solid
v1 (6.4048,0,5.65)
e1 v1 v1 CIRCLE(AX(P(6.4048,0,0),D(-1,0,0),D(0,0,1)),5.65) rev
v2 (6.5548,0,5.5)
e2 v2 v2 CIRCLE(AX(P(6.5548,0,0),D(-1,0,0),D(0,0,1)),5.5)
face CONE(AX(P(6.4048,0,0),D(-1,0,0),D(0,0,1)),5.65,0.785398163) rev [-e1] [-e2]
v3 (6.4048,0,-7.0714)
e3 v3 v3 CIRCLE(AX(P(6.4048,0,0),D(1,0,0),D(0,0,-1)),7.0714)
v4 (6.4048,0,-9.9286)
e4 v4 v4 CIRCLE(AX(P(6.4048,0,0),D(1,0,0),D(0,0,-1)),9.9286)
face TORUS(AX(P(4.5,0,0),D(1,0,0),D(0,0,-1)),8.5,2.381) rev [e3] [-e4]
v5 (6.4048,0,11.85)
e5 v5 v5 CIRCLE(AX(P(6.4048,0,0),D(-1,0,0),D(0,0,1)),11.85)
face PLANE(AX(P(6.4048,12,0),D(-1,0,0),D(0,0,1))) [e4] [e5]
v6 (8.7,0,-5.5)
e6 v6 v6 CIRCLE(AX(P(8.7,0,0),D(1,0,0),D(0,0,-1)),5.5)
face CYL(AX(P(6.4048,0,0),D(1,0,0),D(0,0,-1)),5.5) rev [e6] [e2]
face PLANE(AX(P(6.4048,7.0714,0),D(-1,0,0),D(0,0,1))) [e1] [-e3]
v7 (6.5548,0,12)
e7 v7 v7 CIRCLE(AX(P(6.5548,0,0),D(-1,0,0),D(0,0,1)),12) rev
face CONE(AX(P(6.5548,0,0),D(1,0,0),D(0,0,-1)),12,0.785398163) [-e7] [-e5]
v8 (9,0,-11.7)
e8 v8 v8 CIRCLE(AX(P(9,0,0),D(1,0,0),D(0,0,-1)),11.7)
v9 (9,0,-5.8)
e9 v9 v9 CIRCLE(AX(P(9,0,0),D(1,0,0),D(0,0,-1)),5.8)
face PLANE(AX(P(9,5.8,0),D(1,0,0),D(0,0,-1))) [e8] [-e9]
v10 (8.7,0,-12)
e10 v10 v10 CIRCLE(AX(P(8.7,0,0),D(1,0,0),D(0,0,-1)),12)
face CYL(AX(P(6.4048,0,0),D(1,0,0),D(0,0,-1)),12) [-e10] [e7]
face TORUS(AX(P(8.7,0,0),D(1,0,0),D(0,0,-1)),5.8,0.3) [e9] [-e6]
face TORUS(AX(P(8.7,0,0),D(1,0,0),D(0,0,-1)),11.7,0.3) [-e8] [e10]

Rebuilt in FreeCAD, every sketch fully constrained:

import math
import FreeCAD as App
import Part
import Sketcher
Q = App.Units.Quantity


def edges_at(feature, points):
    """Names of the edges that pass closest to the given points."""
    edges = feature.Shape.Edges
    near = lambda p: min(range(len(edges)), key=lambda i: edges[i].distToShape(Part.Vertex(*p))[0])
    return sorted({f"Edge{near(p) + 1}" for p in points})

doc = App.newDocument("Part")
body = doc.addObject("PartDesign::Body", "Body")

# Sketch on XY plane
sketch1 = body.newObject("Sketcher::SketchObject", "Sketch")
sketch1.AttachmentSupport = (doc.getObject("XY_Plane"), [""])
sketch1.MapMode = "FlatFace"
sketch1.addGeometry([
    Part.LineSegment(App.Vector(6.4, 12, 0), App.Vector(6.4, 9.93, 0)),  # 0
    Part.ArcOfCircle(Part.Circle(App.Vector(4.5, 8.5, 0), App.Vector(0, 0, 1), 2.38), math.radians(-37), math.radians(37)),  # 1
    Part.LineSegment(App.Vector(6.4, 7.07, 0), App.Vector(6.4, 5.5, 0)),  # 2
    Part.LineSegment(App.Vector(6.4, 5.5, 0), App.Vector(8.7, 5.5, 0)),  # 3
    Part.ArcOfCircle(Part.Circle(App.Vector(8.7, 5.8, 0), App.Vector(0, 0, 1), 0.3), math.radians(-90), math.radians(0)),  # 4
    Part.LineSegment(App.Vector(9, 5.8, 0), App.Vector(9, 11.7, 0)),  # 5
    Part.ArcOfCircle(Part.Circle(App.Vector(8.7, 11.7, 0), App.Vector(0, 0, 1), 0.3), math.radians(0), math.radians(90)),  # 6
    Part.LineSegment(App.Vector(8.7, 12, 0), App.Vector(6.4, 12, 0)),  # 7
], False)
sketch1.addConstraint([
    Sketcher.Constraint("Coincident", 0, 2, 1, 2),
    Sketcher.Constraint("Coincident", 1, 1, 2, 1),
    Sketcher.Constraint("Coincident", 2, 2, 3, 1),
    Sketcher.Constraint("Tangent", 3, 2, 4, 1),
    Sketcher.Constraint("Tangent", 4, 2, 5, 1),
    Sketcher.Constraint("Tangent", 5, 2, 6, 1),
    Sketcher.Constraint("Tangent", 6, 2, 7, 1),
    Sketcher.Constraint("Coincident", 7, 2, 0, 1),
    Sketcher.Constraint("Vertical", 0),
    Sketcher.Constraint("Vertical", 2),
    Sketcher.Constraint("Horizontal", 3),
    Sketcher.Constraint("Vertical", 5),
    Sketcher.Constraint("Horizontal", 7),
    Sketcher.Constraint("Equal", 4, 6),
    Sketcher.Constraint("Vertical", 0, 2, 1, 1),
    Sketcher.Constraint("Radius", 4, Q("0.3 mm")),
    Sketcher.Constraint("DistanceY", 5, 1, 5, 2, Q("5.9 mm")),
    Sketcher.Constraint("DistanceX", -1, 1, 4, 2, Q("9 mm")),
    Sketcher.Constraint("DistanceY", -1, 1, 6, 2, Q("12 mm")),
    Sketcher.Constraint("Radius", 1, Q("2.381 mm")),
    Sketcher.Constraint("DistanceY", 2, 2, 1, 3, Q("3 mm")),
    Sketcher.Constraint("DistanceX", -1, 1, 1, 3, Q("4.5 mm")),
    Sketcher.Constraint("DistanceX", 3, 1, 3, 2, Q("2.2952 mm")),
])
revolution = body.newObject("PartDesign::Revolution", "Revolution")
revolution.Profile = sketch1
revolution.ReferenceAxis = (sketch1, ["H_Axis"])
revolution.Angle = 360
doc.recompute()

chamfer = body.newObject("PartDesign::Chamfer", "Chamfer")
chamfer.Base = (revolution, edges_at(revolution, [(6.405, 0, 12), (6.405, 0, 5.5)]))
chamfer.Size = 0.15

doc.recompute()
